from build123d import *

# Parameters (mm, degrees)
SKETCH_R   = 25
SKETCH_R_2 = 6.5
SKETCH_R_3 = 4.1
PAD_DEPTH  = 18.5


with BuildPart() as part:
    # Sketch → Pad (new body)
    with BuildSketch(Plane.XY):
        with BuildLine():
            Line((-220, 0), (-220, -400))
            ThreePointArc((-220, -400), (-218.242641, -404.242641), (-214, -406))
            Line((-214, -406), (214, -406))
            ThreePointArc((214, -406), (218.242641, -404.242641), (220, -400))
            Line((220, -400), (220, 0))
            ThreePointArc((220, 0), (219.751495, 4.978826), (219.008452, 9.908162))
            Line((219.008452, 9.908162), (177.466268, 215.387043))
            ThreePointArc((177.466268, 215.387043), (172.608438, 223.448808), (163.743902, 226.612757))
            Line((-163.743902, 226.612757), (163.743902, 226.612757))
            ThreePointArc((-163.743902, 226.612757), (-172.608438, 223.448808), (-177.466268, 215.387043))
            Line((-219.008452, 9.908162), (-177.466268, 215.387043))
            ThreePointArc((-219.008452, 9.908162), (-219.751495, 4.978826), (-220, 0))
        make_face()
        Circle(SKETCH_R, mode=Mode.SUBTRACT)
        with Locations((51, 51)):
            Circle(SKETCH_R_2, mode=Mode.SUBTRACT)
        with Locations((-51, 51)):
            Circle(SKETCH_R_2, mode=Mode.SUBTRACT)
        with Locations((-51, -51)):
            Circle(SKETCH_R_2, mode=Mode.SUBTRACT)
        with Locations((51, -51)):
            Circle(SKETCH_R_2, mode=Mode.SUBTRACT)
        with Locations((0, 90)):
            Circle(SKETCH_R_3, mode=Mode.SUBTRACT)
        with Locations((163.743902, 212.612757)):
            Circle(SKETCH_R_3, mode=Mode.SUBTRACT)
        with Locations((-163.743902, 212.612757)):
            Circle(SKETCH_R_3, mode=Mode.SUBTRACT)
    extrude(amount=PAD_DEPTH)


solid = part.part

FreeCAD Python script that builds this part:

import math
import FreeCAD as App
import Part
import Sketcher

V = App.Vector

doc = App.newDocument("Part")
body = doc.addObject("PartDesign::Body", "Body")

# Sketch on XY plane
sketch1 = doc.addObject("Sketcher::SketchObject", "Sketch")
body.addObject(sketch1)
sketch1.AttachmentSupport = (doc.XY_Plane, [""])
sketch1.MapMode = "FlatFace"
sketch1.addGeometry([
    Part.LineSegment(V(-220, 0, 0), V(-220, -400, 0)),  # 0
    Part.ArcOfCircle(Part.Circle(V(-214.000001, -400.000001, 0), V(0, 0, 1), 5.999999), math.radians(179.99999), math.radians(270.00001)),  # 1
    Part.LineSegment(V(-214, -406, 0), V(214, -406, 0)),  # 2
    Part.ArcOfCircle(Part.Circle(V(214.000001, -400.000001, 0), V(0, 0, 1), 5.999999), math.radians(-90.00001), math.radians(0.00001)),  # 3
    Part.LineSegment(V(220, -400, 0), V(220, 0, 0)),  # 4
    Part.ArcOfCircle(Part.Circle(V(169.999884, -0.000009, 0), V(0, 0, 1), 50.000116), math.radians(0.000011), math.radians(11.429555)),  # 5
    Part.LineSegment(V(219.008452, 9.908162, 0), V(177.466268, 215.387043, 0)),  # 6
    Part.ArcOfCircle(Part.Circle(V(163.743902, 212.612758, 0), V(0, 0, 1), 13.999999), math.radians(11.429571), math.radians(90.000001)),  # 7
    Part.LineSegment(V(163.743902, 226.612757, 0), V(-163.743902, 226.612757, 0)),  # 8
    Part.ArcOfCircle(Part.Circle(V(-163.743902, 212.612758, 0), V(0, 0, 1), 13.999999), math.radians(89.999999), math.radians(168.570429)),  # 9
    Part.LineSegment(V(-177.466268, 215.387043, 0), V(-219.008452, 9.908162, 0)),  # 10
    Part.ArcOfCircle(Part.Circle(V(-169.999884, -0.000009, 0), V(0, 0, 1), 50.000116), math.radians(168.570445), math.radians(179.999989)),  # 11
    Part.Circle(V(-51, -51, 0), V(0, 0, 1), 6.5),  # 12
    Part.Circle(V(-51, 51, 0), V(0, 0, 1), 6.5),  # 13
    Part.Circle(V(51, -51, 0), V(0, 0, 1), 6.5),  # 14
    Part.Circle(V(0, 0, 0), V(0, 0, 1), 25),  # 15
    Part.Circle(V(51, 51, 0), V(0, 0, 1), 6.5),  # 16
    Part.Circle(V(-163.743902, 212.612757, 0), V(0, 0, 1), 4.1),  # 17
    Part.Circle(V(0, 90, 0), V(0, 0, 1), 4.1),  # 18
    Part.Circle(V(163.743902, 212.612757, 0), V(0, 0, 1), 4.1),  # 19
], False)
sketch1.addConstraint([
    Sketcher.Constraint("Coincident", 0, 2, 1, 1),
    Sketcher.Constraint("Coincident", 1, 2, 2, 1),
    Sketcher.Constraint("Coincident", 2, 2, 3, 1),
    Sketcher.Constraint("Coincident", 3, 2, 4, 1),
    Sketcher.Constraint("Coincident", 4, 2, 5, 1),
    Sketcher.Constraint("Coincident", 5, 2, 6, 1),
    Sketcher.Constraint("Coincident", 6, 2, 7, 1),
    Sketcher.Constraint("Coincident", 7, 2, 8, 1),
    Sketcher.Constraint("Coincident", 8, 2, 9, 1),
    Sketcher.Constraint("Coincident", 9, 2, 10, 1),
    Sketcher.Constraint("Coincident", 10, 2, 11, 1),
    Sketcher.Constraint("Coincident", 11, 2, 0, 1),
    Sketcher.Constraint("Vertical", 0),
    Sketcher.Constraint("Horizontal", 2),
    Sketcher.Constraint("Vertical", 4),
    Sketcher.Constraint("Horizontal", 8),
    Sketcher.Constraint("Coincident", 15, 3, -1, 1),
    Sketcher.Constraint("Coincident", 17, 3, 9, 3),
    Sketcher.Constraint("Coincident", 19, 3, 7, 3),
    Sketcher.Constraint("PointOnObject", 18, 3, -2),
    Sketcher.Constraint("PointOnObject", 4, 2, -1),
    Sketcher.Constraint("PointOnObject", 11, 2, -1),
    Sketcher.Constraint("Diameter", 12, 13.0),
    Sketcher.Constraint("Diameter", 13, 13.0),
    Sketcher.Constraint("Diameter", 14, 13.0),
    Sketcher.Constraint("Diameter", 15, 50.0),
    Sketcher.Constraint("Diameter", 16, 13.0),
    Sketcher.Constraint("Radius", 1, 5.999999),
    Sketcher.Constraint("Radius", 3, 5.999999),
    Sketcher.Constraint("Radius", 7, 13.999999),
    Sketcher.Constraint("Radius", 9, 13.999999),
    Sketcher.Constraint("Diameter", 17, 8.2),
    Sketcher.Constraint("Diameter", 18, 8.2),
    Sketcher.Constraint("Diameter", 19, 8.2),
    Sketcher.Constraint("DistanceX", 2, 1, 2, 2, 428.0),
    Sketcher.Constraint("DistanceY", 0, 2, 0, 1, 400.0),
    Sketcher.Constraint("DistanceY", 4, 1, 4, 2, 400.0),
    Sketcher.Constraint("DistanceX", 1, 3, -1, 1, 214.000001),
    Sketcher.Constraint("DistanceY", 1, 3, -1, 1, 400.000001),
    Sketcher.Constraint("DistanceX", -1, 1, 3, 3, 214.000001),
    Sketcher.Constraint("DistanceX", 12, 3, -1, 1, 51.0),
    Sketcher.Constraint("DistanceY", 12, 3, -1, 1, 51.0),
    Sketcher.Constraint("DistanceX", 13, 3, -1, 1, 51.0),
    Sketcher.Constraint("DistanceY", -1, 1, 13, 3, 51.0),
    Sketcher.Constraint("DistanceX", -1, 1, 14, 3, 51.0),
    Sketcher.Constraint("DistanceY", 14, 3, -1, 1, 51.0),
    Sketcher.Constraint("DistanceX", -1, 1, 16, 3, 51.0),
    Sketcher.Constraint("DistanceY", -1, 1, 16, 3, 51.0),
    Sketcher.Constraint("DistanceY", -1, 1, 18, 3, 90.0),
    Sketcher.Constraint("DistanceX", 1, 2, -1, 1, 214.0),
    Sketcher.Constraint("Radius", 5, 50.000116),
    Sketcher.Constraint("Radius", 11, 50.000116),
    Sketcher.Constraint("DistanceX", 17, 3, -1, 1, 163.743902),
    Sketcher.Constraint("DistanceX", -1, 1, 19, 3, 163.743902),
    Sketcher.Constraint("DistanceX", -1, 1, 7, 2, 163.743902),
    Sketcher.Constraint("DistanceX", 8, 2, -1, 1, 163.743902),
    Sketcher.Constraint("Distance", 6, 209.63617),
    Sketcher.Constraint("Distance", 10, 209.63617),
    Sketcher.Constraint("DistanceX", -1, 1, 5, 2, 219.008452),
    Sketcher.Constraint("DistanceY", -1, 1, 5, 2, 9.908162),
    Sketcher.Constraint("DistanceX", -1, 1, 6, 2, 177.466268),
    Sketcher.Constraint("DistanceX", 10, 2, -1, 1, 219.008452),
    Sketcher.Constraint("DistanceY", 1, 3, 11, 3, 399.999992),
])
pad1 = doc.addObject("PartDesign::Pad", "Pad")
body.addObject(pad1)
pad1.Profile = sketch1
pad1.Length = 18.5

doc.recompute()
